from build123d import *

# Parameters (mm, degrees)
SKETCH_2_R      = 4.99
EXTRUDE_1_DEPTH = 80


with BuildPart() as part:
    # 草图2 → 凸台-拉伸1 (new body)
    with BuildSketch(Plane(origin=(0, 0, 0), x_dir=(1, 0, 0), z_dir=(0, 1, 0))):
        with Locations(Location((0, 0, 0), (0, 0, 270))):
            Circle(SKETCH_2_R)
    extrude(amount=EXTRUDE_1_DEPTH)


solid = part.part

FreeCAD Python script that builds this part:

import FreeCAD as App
import Part
import Sketcher

doc = App.newDocument("Part")
body = doc.addObject("PartDesign::Body", "Body")

sketch1 = body.newObject("Sketcher::SketchObject", "Sketch")
sketch1.AttachmentSupport = (doc.getObject("XZ_Plane"), [""])
sketch1.MapMode = "FlatFace"
sketch1.addGeometry(Part.Circle(App.Vector(0, 0, 0), App.Vector(0, 0, 1), 5), False)
sketch1.addConstraint([
    Sketcher.Constraint("Coincident", 0, 3, -1, 1),
    Sketcher.Constraint("Diameter", 0, 9.98),
])
pad1 = body.newObject("PartDesign::Pad", "Pad")
pad1.Profile = sketch1
pad1.Length = 80
pad1.Reversed = True

doc.recompute()
